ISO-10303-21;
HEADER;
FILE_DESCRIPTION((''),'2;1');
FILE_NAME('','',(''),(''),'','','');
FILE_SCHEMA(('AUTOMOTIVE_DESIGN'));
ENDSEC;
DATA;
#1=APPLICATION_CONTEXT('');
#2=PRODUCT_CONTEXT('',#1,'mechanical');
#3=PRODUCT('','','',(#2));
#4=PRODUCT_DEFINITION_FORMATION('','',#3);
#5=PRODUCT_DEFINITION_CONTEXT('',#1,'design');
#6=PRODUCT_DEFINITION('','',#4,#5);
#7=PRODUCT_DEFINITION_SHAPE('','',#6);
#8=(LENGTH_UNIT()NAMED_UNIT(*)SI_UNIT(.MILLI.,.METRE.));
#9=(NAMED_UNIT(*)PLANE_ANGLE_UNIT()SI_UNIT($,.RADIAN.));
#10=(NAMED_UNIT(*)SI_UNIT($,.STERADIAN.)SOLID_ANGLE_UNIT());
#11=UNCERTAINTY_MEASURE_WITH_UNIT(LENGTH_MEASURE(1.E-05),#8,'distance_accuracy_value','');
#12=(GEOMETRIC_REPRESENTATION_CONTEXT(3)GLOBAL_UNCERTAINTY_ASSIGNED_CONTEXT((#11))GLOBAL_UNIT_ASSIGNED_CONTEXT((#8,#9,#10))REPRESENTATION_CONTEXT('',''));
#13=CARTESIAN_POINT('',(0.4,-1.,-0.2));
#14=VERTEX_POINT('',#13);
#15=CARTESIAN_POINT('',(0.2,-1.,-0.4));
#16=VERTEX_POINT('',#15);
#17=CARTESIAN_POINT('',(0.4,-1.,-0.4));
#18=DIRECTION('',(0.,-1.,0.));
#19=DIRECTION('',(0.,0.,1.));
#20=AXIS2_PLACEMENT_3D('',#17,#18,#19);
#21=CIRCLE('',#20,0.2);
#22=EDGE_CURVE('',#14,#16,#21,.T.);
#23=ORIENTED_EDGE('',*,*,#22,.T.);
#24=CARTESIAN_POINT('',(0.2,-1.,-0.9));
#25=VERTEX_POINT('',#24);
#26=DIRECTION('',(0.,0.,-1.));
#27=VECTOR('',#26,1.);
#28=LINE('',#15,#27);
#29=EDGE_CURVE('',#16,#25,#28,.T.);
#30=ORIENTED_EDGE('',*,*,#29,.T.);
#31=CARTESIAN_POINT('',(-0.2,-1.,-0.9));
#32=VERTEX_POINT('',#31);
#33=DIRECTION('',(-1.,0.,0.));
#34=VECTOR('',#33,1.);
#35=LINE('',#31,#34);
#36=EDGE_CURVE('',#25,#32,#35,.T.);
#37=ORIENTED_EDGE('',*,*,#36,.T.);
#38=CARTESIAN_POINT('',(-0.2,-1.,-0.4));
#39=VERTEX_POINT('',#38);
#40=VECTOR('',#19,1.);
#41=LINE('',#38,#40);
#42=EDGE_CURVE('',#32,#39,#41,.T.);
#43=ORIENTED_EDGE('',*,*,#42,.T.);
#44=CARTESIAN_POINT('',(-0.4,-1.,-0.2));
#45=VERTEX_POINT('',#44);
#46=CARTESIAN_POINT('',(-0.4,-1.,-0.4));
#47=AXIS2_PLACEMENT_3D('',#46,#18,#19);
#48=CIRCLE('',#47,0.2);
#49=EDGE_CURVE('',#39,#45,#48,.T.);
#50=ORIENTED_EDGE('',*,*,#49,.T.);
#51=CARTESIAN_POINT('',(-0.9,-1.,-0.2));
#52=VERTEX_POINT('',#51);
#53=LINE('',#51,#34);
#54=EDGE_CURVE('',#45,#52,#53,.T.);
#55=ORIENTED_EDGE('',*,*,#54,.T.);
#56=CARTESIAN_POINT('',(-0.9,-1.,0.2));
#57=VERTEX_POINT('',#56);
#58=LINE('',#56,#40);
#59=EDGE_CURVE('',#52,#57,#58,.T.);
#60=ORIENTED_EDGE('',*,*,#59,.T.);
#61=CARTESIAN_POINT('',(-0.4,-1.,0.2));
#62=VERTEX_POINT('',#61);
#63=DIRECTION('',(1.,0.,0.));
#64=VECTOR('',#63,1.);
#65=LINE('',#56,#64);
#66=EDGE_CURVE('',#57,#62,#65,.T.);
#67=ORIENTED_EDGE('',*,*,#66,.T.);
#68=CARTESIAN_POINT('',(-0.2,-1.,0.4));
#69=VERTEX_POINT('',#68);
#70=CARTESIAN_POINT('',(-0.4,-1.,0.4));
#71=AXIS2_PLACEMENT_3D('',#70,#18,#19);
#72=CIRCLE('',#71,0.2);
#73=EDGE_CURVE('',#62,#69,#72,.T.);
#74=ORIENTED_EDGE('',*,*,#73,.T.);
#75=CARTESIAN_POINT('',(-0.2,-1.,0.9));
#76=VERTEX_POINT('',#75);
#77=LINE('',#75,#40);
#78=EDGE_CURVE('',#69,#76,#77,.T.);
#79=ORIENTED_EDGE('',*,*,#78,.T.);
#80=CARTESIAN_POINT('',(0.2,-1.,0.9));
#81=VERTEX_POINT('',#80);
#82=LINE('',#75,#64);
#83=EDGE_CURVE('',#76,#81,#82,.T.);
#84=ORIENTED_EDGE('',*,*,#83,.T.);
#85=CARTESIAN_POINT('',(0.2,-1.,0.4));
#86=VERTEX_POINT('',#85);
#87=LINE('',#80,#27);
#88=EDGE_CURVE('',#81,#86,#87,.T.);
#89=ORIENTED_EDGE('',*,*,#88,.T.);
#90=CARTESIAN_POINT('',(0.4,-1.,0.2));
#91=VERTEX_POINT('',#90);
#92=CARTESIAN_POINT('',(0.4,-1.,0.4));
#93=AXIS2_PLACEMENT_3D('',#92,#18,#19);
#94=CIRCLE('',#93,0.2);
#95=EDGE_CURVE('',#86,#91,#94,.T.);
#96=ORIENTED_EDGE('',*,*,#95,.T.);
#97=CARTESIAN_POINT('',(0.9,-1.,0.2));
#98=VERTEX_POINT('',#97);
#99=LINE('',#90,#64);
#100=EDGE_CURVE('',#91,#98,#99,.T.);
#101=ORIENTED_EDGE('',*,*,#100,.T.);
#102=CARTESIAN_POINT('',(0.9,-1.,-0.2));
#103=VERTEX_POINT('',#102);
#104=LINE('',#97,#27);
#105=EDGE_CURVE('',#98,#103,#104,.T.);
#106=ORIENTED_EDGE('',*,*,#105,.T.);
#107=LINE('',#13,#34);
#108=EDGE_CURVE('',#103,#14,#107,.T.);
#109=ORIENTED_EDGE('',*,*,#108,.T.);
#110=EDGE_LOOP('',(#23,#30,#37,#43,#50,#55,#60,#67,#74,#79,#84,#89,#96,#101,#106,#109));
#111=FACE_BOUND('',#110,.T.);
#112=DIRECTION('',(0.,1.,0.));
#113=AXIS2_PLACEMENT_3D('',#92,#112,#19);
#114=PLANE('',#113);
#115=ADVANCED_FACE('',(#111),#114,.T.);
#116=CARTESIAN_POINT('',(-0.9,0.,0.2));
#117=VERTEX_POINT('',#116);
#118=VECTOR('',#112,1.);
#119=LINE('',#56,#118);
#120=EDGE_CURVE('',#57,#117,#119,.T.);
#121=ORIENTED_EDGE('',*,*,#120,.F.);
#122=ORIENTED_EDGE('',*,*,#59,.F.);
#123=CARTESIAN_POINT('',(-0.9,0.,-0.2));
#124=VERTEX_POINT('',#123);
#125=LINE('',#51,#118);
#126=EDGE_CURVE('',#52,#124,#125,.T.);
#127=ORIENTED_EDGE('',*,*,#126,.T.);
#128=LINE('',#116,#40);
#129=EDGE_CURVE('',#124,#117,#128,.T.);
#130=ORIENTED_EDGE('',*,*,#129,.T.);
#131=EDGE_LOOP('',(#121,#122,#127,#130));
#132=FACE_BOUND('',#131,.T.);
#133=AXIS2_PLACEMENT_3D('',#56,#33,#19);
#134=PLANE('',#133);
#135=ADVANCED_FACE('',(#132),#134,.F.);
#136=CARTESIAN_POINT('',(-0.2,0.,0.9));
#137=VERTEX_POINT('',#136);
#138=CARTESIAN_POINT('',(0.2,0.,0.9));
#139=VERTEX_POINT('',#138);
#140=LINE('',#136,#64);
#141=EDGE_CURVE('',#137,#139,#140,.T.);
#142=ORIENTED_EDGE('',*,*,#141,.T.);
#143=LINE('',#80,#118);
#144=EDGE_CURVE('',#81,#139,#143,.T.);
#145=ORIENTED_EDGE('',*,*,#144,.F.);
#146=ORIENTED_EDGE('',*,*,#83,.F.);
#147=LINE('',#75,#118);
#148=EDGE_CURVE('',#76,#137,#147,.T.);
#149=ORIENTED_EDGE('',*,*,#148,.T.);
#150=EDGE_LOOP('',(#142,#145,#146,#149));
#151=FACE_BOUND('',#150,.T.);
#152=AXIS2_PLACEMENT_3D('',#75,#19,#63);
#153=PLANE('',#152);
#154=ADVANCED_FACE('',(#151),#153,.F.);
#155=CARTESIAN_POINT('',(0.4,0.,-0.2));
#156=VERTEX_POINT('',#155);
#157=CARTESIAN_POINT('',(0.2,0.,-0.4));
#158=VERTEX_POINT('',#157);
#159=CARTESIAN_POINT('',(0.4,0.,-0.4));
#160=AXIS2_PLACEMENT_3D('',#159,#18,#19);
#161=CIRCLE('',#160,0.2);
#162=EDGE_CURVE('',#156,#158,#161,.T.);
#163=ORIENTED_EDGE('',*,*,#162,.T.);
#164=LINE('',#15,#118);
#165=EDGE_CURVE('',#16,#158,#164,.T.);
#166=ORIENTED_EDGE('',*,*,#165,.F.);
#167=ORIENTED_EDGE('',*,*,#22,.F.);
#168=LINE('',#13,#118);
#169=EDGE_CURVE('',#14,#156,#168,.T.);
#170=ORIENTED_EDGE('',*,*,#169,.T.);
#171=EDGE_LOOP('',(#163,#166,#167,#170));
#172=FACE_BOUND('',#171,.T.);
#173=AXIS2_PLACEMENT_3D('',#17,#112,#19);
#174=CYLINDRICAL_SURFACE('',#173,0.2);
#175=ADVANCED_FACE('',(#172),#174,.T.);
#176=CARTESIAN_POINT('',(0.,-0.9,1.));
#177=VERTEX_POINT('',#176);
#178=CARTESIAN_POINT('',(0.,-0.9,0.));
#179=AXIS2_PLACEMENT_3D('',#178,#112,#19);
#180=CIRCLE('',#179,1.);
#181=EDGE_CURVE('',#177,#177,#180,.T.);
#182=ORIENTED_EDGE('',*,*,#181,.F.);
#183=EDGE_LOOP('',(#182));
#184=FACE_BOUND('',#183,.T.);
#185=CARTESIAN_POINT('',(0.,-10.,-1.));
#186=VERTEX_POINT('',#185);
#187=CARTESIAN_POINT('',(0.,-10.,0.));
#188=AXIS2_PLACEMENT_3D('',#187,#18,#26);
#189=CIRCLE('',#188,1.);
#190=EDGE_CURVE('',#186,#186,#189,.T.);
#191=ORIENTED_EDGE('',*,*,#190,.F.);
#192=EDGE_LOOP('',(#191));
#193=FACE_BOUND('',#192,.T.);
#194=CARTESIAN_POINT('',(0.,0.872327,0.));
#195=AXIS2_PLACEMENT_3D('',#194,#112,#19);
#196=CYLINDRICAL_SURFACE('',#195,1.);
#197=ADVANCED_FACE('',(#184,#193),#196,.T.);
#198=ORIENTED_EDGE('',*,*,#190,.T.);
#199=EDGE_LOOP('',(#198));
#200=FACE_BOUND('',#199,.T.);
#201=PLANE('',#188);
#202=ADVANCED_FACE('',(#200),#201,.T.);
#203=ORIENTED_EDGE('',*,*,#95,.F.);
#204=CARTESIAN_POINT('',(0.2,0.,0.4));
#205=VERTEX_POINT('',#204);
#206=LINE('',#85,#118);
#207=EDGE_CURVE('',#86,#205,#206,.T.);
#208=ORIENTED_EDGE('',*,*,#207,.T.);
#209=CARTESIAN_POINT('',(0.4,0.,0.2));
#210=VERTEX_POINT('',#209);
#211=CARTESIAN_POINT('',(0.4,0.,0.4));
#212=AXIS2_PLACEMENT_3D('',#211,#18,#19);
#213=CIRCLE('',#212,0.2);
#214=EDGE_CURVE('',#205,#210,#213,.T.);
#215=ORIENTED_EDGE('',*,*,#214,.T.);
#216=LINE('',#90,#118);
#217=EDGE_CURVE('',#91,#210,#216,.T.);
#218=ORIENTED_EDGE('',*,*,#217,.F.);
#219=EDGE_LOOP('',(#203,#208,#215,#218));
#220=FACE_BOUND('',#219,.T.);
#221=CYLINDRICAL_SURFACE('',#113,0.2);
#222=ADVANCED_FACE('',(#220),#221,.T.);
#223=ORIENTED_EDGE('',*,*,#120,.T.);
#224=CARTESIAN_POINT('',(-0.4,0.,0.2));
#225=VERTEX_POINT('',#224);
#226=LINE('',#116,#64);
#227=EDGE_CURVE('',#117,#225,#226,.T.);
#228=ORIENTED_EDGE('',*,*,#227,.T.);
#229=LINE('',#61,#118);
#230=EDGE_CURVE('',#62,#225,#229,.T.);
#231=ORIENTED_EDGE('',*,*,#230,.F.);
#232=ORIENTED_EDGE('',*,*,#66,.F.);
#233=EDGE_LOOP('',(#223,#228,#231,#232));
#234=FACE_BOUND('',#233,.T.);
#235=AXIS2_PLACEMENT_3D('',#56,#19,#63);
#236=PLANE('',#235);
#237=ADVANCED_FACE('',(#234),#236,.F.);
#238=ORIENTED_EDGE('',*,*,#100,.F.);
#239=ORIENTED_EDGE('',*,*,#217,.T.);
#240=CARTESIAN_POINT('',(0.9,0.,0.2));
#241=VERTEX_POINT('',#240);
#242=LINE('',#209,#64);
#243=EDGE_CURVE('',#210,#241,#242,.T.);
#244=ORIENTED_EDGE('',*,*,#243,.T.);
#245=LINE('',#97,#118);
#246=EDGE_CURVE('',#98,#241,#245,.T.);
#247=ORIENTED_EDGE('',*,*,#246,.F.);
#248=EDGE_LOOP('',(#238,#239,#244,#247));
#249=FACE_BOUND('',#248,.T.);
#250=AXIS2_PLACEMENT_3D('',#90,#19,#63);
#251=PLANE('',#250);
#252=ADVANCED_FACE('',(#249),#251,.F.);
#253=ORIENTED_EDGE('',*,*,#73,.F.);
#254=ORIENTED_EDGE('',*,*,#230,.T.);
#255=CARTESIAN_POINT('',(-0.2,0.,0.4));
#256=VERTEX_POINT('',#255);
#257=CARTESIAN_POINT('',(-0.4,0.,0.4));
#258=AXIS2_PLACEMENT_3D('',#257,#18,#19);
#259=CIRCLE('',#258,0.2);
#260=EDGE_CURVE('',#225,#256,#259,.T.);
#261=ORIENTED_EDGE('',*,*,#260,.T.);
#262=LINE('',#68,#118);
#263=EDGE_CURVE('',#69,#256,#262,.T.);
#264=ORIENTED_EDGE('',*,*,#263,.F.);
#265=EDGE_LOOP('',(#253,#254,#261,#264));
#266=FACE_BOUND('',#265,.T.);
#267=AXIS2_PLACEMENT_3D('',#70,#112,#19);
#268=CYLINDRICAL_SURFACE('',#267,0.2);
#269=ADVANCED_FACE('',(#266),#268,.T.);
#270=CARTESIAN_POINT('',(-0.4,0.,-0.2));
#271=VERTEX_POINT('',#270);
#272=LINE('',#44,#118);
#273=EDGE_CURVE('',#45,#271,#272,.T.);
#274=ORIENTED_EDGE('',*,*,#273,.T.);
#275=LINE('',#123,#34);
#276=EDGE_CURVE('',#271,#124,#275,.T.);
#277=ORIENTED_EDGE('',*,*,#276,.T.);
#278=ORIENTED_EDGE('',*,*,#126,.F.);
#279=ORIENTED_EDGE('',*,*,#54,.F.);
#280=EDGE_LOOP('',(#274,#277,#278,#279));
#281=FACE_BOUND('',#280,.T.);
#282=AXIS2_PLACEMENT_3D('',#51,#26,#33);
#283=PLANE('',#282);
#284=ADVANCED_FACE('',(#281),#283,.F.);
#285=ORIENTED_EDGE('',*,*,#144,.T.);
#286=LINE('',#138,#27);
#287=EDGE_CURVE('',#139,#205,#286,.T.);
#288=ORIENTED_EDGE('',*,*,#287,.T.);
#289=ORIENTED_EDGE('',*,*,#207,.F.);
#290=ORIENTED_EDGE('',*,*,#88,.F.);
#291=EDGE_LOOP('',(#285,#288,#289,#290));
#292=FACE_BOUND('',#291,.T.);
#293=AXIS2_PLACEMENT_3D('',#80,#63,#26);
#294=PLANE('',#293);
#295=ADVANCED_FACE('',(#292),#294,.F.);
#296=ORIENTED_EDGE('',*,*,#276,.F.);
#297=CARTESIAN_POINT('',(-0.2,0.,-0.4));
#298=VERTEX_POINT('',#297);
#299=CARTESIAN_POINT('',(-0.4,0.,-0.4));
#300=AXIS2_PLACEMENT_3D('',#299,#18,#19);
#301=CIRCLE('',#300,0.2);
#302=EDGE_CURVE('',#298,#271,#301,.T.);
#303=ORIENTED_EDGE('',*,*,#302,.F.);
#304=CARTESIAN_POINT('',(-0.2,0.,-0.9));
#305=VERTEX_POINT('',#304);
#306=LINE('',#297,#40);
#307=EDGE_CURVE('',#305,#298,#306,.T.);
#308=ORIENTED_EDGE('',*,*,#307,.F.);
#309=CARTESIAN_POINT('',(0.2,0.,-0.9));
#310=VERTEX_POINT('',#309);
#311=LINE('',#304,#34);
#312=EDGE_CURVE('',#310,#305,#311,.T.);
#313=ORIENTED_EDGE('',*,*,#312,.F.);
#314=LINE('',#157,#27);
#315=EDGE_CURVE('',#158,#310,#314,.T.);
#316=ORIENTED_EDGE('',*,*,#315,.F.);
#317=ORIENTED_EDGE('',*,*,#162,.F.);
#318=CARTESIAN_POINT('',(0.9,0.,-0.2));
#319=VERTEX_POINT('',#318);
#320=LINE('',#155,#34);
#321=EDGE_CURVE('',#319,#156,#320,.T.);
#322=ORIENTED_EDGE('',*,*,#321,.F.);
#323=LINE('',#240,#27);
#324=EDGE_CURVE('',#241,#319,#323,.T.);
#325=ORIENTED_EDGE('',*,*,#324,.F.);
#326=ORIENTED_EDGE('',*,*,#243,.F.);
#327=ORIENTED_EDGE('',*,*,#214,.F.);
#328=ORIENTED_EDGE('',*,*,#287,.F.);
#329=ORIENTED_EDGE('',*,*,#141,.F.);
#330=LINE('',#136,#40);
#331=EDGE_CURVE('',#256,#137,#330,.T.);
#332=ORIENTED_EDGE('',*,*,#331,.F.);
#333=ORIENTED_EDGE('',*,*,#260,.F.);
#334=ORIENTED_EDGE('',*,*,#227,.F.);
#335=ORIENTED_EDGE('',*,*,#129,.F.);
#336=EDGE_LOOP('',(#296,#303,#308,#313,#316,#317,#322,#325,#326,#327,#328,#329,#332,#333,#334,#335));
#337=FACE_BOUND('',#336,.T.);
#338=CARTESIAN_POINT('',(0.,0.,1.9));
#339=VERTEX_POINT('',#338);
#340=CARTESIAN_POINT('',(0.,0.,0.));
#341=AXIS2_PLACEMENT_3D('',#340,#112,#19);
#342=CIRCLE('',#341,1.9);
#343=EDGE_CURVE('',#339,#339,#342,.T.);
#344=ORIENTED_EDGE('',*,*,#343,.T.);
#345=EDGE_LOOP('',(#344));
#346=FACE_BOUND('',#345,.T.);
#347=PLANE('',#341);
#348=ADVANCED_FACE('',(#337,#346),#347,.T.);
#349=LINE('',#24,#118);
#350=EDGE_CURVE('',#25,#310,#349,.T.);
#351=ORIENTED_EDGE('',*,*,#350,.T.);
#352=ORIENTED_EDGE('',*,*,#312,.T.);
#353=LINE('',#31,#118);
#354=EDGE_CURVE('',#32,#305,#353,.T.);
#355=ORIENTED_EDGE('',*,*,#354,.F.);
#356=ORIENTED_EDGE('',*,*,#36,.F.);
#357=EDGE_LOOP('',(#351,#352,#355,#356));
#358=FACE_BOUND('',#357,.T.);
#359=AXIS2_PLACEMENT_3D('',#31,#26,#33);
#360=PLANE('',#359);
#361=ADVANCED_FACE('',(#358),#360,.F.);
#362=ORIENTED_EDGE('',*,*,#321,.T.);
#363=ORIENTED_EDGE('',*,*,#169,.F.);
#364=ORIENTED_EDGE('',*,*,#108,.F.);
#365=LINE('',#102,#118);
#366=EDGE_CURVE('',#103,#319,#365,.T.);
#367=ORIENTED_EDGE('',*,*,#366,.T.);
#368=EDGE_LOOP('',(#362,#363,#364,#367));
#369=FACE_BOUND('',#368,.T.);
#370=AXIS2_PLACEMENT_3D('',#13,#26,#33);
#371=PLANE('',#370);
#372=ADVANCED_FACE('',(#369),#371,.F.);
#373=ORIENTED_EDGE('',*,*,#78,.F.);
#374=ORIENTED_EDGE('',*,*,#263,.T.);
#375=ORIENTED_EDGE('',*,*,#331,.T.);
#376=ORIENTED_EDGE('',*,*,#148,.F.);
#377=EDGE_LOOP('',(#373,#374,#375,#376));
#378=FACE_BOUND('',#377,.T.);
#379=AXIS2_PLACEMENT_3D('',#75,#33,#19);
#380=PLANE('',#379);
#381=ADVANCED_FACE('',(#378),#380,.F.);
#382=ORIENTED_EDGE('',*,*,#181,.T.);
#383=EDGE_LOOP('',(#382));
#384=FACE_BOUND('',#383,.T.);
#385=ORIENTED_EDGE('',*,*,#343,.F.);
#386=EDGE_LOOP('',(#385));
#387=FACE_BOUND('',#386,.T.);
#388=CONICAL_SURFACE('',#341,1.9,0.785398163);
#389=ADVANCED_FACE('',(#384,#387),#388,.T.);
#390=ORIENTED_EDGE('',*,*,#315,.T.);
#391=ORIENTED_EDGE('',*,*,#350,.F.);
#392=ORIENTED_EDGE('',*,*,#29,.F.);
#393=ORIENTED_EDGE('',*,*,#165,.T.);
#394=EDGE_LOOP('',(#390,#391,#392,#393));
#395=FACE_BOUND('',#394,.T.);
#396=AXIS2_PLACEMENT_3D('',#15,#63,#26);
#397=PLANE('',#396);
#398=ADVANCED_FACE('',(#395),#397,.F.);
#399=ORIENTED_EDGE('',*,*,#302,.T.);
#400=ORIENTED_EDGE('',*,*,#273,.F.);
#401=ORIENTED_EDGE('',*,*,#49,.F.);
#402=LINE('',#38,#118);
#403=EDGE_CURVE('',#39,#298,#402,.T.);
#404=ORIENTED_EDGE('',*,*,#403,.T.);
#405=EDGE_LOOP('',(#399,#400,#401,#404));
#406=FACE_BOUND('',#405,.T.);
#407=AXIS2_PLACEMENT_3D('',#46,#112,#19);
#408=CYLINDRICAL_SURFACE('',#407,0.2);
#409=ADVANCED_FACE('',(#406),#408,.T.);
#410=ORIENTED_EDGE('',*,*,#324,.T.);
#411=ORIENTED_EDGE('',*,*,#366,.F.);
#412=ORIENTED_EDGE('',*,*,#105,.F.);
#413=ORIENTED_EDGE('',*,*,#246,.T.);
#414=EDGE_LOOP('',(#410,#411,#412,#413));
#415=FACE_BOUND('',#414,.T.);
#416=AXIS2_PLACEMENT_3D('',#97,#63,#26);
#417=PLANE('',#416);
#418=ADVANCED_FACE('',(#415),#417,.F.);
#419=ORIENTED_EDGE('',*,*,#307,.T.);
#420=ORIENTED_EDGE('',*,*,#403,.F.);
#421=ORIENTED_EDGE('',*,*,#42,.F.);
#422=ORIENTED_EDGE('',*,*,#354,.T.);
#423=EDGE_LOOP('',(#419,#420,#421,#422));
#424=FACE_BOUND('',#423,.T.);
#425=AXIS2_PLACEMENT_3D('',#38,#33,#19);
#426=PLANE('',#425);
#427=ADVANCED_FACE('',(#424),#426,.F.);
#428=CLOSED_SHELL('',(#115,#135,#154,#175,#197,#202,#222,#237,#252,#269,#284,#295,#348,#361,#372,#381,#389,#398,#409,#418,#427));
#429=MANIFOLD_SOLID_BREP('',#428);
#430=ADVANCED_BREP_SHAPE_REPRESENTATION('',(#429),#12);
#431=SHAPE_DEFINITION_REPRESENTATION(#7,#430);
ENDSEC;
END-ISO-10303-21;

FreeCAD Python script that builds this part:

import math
import FreeCAD as App
import Part
import Sketcher

V = App.Vector
Q = App.Units.Quantity

doc = App.newDocument("Part")
body = doc.addObject("PartDesign::Body", "Body")

# Sketch on YZ plane
sketch1 = doc.addObject("Sketcher::SketchObject", "Sketch")
body.addObject(sketch1)
sketch1.AttachmentSupport = (doc.YZ_Plane, [""])
sketch1.MapMode = "FlatFace"
sketch1.addGeometry([
    Part.LineSegment(V(0, 0, 0), V(0, 1.9, 0)),  # 0
    Part.LineSegment(V(0, 1.9, 0), V(-0.9, 1, 0)),  # 1
    Part.LineSegment(V(-0.9, 1, 0), V(-1.2, 1, 0)),  # 2
    Part.LineSegment(V(-1.2, 1, 0), V(-1.2, 0, 0)),  # 3
    Part.LineSegment(V(-1.2, 0, 0), V(0, 0, 0)),  # 4
], False)
sketch1.addConstraint([
    Sketcher.Constraint("Coincident", 0, 2, 1, 1),
    Sketcher.Constraint("Coincident", 1, 2, 2, 1),
    Sketcher.Constraint("Coincident", 2, 2, 3, 1),
    Sketcher.Constraint("Coincident", 3, 2, 4, 1),
    Sketcher.Constraint("Coincident", 4, 2, 0, 1),
    Sketcher.Constraint("Vertical", 0),
    Sketcher.Constraint("Horizontal", 2),
    Sketcher.Constraint("Vertical", 3),
    Sketcher.Constraint("Horizontal", 4),
    Sketcher.Constraint("Coincident", 4, 2, -1, 1),
    Sketcher.Constraint("DistanceY", 3, 2, 3, 1, Q("1 mm")),
    Sketcher.Constraint("Angle", 1, Q("-135 deg")),
    Sketcher.Constraint("DistanceX", 2, 2, 2, 1, Q("0.3 mm")),
    Sketcher.Constraint("DistanceX", 4, 1, 4, 2, Q("1.2 mm")),
])
revolution = doc.addObject("PartDesign::Revolution", "Revolution")
body.addObject(revolution)
revolution.Profile = sketch1
revolution.ReferenceAxis = (sketch1, ["H_Axis"])
revolution.Angle = 360

# Sketch on XZ plane
sketch2 = doc.addObject("Sketcher::SketchObject", "Sketch001")
body.addObject(sketch2)
sketch2.AttachmentSupport = (doc.XZ_Plane, [""])
sketch2.MapMode = "FlatFace"
sketch2.AttachmentOffset = App.Placement(V(0, 0, 1.2), App.Rotation())
sketch2.addGeometry(Part.Circle(V(0, 0, 0), V(0, 0, 1), 1), False)
sketch2.addConstraint([
    Sketcher.Constraint("Coincident", 0, 3, -1, 1),
    Sketcher.Constraint("Diameter", 0, Q("2 mm")),
])
pad1 = doc.addObject("PartDesign::Pad", "Pad")
body.addObject(pad1)
pad1.Profile = sketch2
pad1.Length = 8.8

# Sketch on XZ plane
sketch3 = doc.addObject("Sketcher::SketchObject", "Sketch002")
body.addObject(sketch3)
sketch3.AttachmentSupport = (doc.XZ_Plane, [""])
sketch3.MapMode = "FlatFace"
sketch3.addGeometry([
    Part.LineSegment(V(-0.9, 0.2, 0), V(-0.4, 0.2, 0)),  # 0
    Part.ArcOfCircle(Part.Circle(V(-0.4, 0.4, 0), V(0, 0, 1), 0.2), math.radians(-90), math.radians(0)),  # 1
    Part.LineSegment(V(-0.2, 0.4, 0), V(-0.2, 0.9, 0)),  # 2
    Part.LineSegment(V(-0.2, 0.9, 0), V(0.2, 0.9, 0)),  # 3
    Part.LineSegment(V(0.2, 0.9, 0), V(0.2, 0.4, 0)),  # 4
    Part.ArcOfCircle(Part.Circle(V(0.4, 0.4, 0), V(0, 0, 1), 0.2), math.radians(-180), math.radians(-90)),  # 5
    Part.LineSegment(V(0.4, 0.2, 0), V(0.9, 0.2, 0)),  # 6
    Part.LineSegment(V(0.9, 0.2, 0), V(0.9, -0.2, 0)),  # 7
    Part.LineSegment(V(0.9, -0.2, 0), V(0.4, -0.2, 0)),  # 8
    Part.ArcOfCircle(Part.Circle(V(0.4, -0.4, 0), V(0, 0, 1), 0.2), math.radians(90), math.radians(180)),  # 9
    Part.LineSegment(V(0.2, -0.4, 0), V(0.2, -0.9, 0)),  # 10
    Part.LineSegment(V(0.2, -0.9, 0), V(-0.2, -0.9, 0)),  # 11
    Part.LineSegment(V(-0.2, -0.9, 0), V(-0.2, -0.4, 0)),  # 12
    Part.ArcOfCircle(Part.Circle(V(-0.4, -0.4, 0), V(0, 0, 1), 0.2), math.radians(0), math.radians(90)),  # 13
    Part.LineSegment(V(-0.4, -0.2, 0), V(-0.9, -0.2, 0)),  # 14
    Part.LineSegment(V(-0.9, -0.2, 0), V(-0.9, 0.2, 0)),  # 15
], False)
sketch3.addConstraint([
    Sketcher.Constraint("Tangent", 0, 2, 1, 1),
    Sketcher.Constraint("Tangent", 1, 2, 2, 1),
    Sketcher.Constraint("Coincident", 2, 2, 3, 1),
    Sketcher.Constraint("Coincident", 3, 2, 4, 1),
    Sketcher.Constraint("Tangent", 4, 2, 5, 1),
    Sketcher.Constraint("Tangent", 5, 2, 6, 1),
    Sketcher.Constraint("Coincident", 6, 2, 7, 1),
    Sketcher.Constraint("Coincident", 7, 2, 8, 1),
    Sketcher.Constraint("Tangent", 8, 2, 9, 1),
    Sketcher.Constraint("Tangent", 9, 2, 10, 1),
    Sketcher.Constraint("Coincident", 10, 2, 11, 1),
    Sketcher.Constraint("Coincident", 11, 2, 12, 1),
    Sketcher.Constraint("Tangent", 12, 2, 13, 1),
    Sketcher.Constraint("Tangent", 13, 2, 14, 1),
    Sketcher.Constraint("Coincident", 14, 2, 15, 1),
    Sketcher.Constraint("Coincident", 15, 2, 0, 1),
    Sketcher.Constraint("Horizontal", 0),
    Sketcher.Constraint("Vertical", 2),
    Sketcher.Constraint("Horizontal", 3),
    Sketcher.Constraint("Vertical", 4),
    Sketcher.Constraint("Horizontal", 6),
    Sketcher.Constraint("Vertical", 7),
    Sketcher.Constraint("Horizontal", 8),
    Sketcher.Constraint("Vertical", 10),
    Sketcher.Constraint("Horizontal", 11),
    Sketcher.Constraint("Vertical", 12),
    Sketcher.Constraint("Horizontal", 14),
    Sketcher.Constraint("Vertical", 15),
    Sketcher.Constraint("Equal", 1, 5),
    Sketcher.Constraint("Equal", 5, 9),
    Sketcher.Constraint("Equal", 9, 13),
    Sketcher.Constraint("Symmetric", 1, 3, 9, 3, -1, 1),
    Sketcher.Constraint("Symmetric", 5, 3, 13, 3, -1, 1),
    Sketcher.Constraint("Symmetric", 1, 3, 5, 3, -2),
    Sketcher.Constraint("Equal", 0, 6),
    Sketcher.Constraint("Equal", 14, 2),
    Sketcher.Constraint("Equal", 11, 7),
    Sketcher.Constraint("Equal", 4, 10),
    Sketcher.Constraint("Radius", 1, Q("0.2 mm")),
    Sketcher.Constraint("DistanceX", 0, 1, 0, 2, Q("0.5 mm")),
    Sketcher.Constraint("DistanceX", 3, 1, 3, 2, Q("0.4 mm")),
])
pocket1 = doc.addObject("PartDesign::Pocket", "Pocket")
body.addObject(pocket1)
pocket1.Profile = sketch3
pocket1.Length = 1
pocket1.Reversed = True

doc.recompute()
